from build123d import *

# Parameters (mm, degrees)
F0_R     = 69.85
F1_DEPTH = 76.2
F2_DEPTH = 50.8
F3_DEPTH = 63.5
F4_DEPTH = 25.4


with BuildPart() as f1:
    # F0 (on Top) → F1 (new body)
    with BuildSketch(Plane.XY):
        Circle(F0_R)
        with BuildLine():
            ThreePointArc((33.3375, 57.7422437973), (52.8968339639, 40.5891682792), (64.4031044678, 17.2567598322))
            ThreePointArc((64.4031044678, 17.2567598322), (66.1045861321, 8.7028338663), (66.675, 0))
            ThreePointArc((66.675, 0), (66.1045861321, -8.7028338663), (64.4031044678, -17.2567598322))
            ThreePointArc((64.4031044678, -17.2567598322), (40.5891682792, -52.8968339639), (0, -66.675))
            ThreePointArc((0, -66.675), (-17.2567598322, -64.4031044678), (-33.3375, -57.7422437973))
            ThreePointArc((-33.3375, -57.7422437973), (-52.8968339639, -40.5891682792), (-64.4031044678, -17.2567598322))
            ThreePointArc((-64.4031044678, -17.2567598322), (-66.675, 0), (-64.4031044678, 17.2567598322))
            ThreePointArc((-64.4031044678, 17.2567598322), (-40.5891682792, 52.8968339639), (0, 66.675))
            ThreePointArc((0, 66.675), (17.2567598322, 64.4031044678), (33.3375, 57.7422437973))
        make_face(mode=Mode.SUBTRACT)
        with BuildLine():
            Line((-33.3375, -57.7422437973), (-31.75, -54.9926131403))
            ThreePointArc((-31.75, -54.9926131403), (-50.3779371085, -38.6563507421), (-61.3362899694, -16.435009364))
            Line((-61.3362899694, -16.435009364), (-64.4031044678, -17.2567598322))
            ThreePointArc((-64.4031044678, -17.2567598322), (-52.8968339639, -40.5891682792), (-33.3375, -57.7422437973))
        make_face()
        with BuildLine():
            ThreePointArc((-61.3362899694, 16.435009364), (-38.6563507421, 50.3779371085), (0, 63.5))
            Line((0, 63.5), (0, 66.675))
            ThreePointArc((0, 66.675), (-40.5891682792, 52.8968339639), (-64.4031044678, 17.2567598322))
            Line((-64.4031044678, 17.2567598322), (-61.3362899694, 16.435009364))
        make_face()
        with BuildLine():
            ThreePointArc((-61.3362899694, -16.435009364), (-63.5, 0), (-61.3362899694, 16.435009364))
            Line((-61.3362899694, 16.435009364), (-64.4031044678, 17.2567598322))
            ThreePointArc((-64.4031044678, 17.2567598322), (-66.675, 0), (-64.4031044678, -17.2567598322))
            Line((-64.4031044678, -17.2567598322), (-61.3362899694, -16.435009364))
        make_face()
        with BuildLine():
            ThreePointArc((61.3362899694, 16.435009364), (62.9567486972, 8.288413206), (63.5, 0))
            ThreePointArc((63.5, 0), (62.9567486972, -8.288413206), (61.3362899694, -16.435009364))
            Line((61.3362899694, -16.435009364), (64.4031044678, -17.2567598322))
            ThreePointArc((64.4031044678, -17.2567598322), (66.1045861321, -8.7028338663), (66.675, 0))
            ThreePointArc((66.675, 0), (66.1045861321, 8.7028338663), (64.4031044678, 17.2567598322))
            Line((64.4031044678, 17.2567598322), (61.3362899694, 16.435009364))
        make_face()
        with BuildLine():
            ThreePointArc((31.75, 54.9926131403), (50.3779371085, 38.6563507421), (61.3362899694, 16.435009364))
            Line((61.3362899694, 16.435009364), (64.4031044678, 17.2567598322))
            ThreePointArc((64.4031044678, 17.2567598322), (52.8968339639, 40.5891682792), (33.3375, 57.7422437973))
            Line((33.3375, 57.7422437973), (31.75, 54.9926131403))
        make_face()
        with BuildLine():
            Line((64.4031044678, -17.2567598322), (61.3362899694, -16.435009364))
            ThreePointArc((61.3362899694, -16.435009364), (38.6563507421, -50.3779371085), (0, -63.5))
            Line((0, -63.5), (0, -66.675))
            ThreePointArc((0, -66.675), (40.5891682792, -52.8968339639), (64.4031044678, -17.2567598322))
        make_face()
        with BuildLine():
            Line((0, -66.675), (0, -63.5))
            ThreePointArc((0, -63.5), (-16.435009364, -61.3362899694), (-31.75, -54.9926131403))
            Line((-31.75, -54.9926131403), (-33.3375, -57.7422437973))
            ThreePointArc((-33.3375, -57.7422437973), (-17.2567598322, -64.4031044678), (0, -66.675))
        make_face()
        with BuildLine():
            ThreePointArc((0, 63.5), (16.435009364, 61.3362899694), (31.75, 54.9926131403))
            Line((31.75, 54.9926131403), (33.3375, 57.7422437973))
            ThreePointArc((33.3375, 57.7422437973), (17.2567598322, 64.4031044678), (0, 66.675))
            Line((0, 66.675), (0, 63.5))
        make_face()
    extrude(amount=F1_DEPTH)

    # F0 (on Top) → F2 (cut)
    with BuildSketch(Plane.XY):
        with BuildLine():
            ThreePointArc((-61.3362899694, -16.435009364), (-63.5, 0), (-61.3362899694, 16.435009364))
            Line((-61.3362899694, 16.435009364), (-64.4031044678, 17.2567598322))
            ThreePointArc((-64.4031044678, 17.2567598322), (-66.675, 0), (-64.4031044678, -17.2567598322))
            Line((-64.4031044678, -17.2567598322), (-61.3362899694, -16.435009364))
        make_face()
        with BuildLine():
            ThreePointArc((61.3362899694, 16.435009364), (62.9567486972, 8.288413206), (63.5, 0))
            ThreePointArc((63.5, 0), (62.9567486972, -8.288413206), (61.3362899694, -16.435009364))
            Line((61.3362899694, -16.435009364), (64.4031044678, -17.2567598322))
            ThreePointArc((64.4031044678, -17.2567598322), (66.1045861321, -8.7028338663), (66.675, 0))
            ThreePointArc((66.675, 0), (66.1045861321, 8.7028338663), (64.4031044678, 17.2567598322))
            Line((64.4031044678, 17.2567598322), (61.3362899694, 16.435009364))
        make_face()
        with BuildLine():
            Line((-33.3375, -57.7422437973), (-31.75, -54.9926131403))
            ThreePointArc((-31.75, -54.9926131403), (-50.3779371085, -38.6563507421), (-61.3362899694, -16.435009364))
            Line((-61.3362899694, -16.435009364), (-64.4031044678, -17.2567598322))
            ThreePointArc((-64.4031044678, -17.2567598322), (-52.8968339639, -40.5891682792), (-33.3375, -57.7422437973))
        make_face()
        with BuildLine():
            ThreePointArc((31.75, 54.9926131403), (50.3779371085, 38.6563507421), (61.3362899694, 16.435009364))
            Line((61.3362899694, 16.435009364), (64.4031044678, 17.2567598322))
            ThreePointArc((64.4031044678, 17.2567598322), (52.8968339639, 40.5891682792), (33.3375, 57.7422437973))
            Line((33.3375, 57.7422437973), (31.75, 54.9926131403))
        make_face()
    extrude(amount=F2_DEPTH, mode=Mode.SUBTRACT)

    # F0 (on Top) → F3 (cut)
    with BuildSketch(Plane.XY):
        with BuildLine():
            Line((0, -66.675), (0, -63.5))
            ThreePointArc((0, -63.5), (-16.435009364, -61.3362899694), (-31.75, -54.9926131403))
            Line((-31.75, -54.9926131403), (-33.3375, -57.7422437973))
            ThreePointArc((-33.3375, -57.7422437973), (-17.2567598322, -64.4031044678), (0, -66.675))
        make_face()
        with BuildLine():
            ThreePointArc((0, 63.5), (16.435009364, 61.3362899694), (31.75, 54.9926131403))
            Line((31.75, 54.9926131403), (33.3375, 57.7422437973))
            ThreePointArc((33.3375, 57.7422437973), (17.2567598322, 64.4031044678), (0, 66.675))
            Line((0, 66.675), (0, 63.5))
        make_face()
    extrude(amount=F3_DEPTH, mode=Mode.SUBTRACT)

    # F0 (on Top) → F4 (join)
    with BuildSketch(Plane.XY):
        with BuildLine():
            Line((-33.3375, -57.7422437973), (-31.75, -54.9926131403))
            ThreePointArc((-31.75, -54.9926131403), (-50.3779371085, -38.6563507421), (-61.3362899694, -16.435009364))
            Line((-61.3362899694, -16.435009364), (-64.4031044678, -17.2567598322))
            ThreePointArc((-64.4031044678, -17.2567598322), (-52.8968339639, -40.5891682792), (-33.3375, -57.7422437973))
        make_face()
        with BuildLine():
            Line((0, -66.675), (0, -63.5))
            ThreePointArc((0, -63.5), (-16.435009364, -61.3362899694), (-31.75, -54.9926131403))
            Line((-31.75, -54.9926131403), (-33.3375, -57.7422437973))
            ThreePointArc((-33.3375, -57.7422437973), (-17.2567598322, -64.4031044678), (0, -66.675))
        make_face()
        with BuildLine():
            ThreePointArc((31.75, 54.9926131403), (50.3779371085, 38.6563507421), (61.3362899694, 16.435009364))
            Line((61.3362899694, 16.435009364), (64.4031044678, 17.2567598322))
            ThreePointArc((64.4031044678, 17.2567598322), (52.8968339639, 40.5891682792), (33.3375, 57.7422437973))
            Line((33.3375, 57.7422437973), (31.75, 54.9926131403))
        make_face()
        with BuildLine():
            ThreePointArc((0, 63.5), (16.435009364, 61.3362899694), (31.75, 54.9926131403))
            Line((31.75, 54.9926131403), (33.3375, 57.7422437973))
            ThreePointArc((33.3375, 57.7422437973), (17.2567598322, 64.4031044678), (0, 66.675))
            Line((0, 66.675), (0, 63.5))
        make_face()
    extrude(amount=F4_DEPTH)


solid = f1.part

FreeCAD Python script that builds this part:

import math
import FreeCAD as App
import Part
import Sketcher

V = App.Vector
Q = App.Units.Quantity

doc = App.newDocument("Part")
body = doc.addObject("PartDesign::Body", "Body")

sketch1 = body.newObject("Sketcher::SketchObject", "Sketch")
sketch1.AttachmentSupport = (doc.getObject("XY_Plane"), [""])
sketch1.MapMode = "FlatFace"
sketch1.addGeometry([
    Part.Circle(V(0, 0, 0), V(0, 0, 1), 69.85),
    Part.ArcOfCircle(Part.Circle(V(0, 0, 0), V(0, 0, 1), 63.5), math.radians(15), math.radians(60)),
    Part.ArcOfCircle(Part.Circle(V(0, 0, 0), V(0, 0, 1), 63.5), math.radians(0), math.radians(15)),
    Part.ArcOfCircle(Part.Circle(V(0, 0, 0), V(0, 0, 1), 63.5), math.radians(-15), math.radians(0)),
    Part.ArcOfCircle(Part.Circle(V(0, 0, 0), V(0, 0, 1), 63.5), math.radians(-90), math.radians(-15)),
    Part.ArcOfCircle(Part.Circle(V(0, 0, 0), V(0, 0, 1), 63.5), math.radians(-120), math.radians(-90)),
    Part.ArcOfCircle(Part.Circle(V(0, 0, 0), V(0, 0, 1), 63.5), math.radians(-165), math.radians(-120)),
    Part.ArcOfCircle(Part.Circle(V(0, 0, 0), V(0, 0, 1), 63.5), math.radians(165), math.radians(195)),
    Part.ArcOfCircle(Part.Circle(V(0, 0, 0), V(0, 0, 1), 63.5), math.radians(90), math.radians(165)),
    Part.ArcOfCircle(Part.Circle(V(0, 0, 0), V(0, 0, 1), 63.5), math.radians(60), math.radians(90)),
], False)
sketch1.addConstraint([
    Sketcher.Constraint("Tangent", 1, 1, 2, 2),
    Sketcher.Constraint("Tangent", 2, 1, 3, 2),
    Sketcher.Constraint("Tangent", 3, 1, 4, 2),
    Sketcher.Constraint("Tangent", 4, 1, 5, 2),
    Sketcher.Constraint("Tangent", 5, 1, 6, 2),
    Sketcher.Constraint("Tangent", 6, 1, 7, 2),
    Sketcher.Constraint("Tangent", 7, 1, 8, 2),
    Sketcher.Constraint("Tangent", 8, 1, 9, 2),
    Sketcher.Constraint("Tangent", 9, 1, 1, 2),
    Sketcher.Constraint("Coincident", 0, 3, -1, 1),
    Sketcher.Constraint("Coincident", 1, 3, -1, 1),
    Sketcher.Constraint("Coincident", 3, 3, -1, 1),
    Sketcher.Constraint("Coincident", 5, 3, -1, 1),
    Sketcher.Constraint("Coincident", 7, 3, -1, 1),
    Sketcher.Constraint("PointOnObject", 2, 1, -1),
    Sketcher.Constraint("PointOnObject", 4, 1, -2),
    Sketcher.Constraint("PointOnObject", 8, 1, -2),
    Sketcher.Constraint("Horizontal", 3, 1, 6, 1),
    Sketcher.Constraint("Horizontal", 1, 1, 7, 1),
    Sketcher.Constraint("Vertical", 1, 1, 3, 1),
    Sketcher.Constraint("Diameter", 0, Q("5.5 in")),
    Sketcher.Constraint("Radius", 1, Q("2.5 in")),
    Sketcher.Constraint("DistanceX", 5, 1, -1, 1, Q("1.25 in")),
    Sketcher.Constraint("DistanceX", -1, 1, 9, 1, Q("1.25 in")),
    Sketcher.Constraint("DistanceX", -1, 1, 1, 1, Q("61.33629 mm")),
])
pad1 = body.newObject("PartDesign::Pad", "Pad")
pad1.Profile = sketch1
pad1.Length = Q("3 in")

sketch2 = body.newObject("Sketcher::SketchObject", "Sketch001")
sketch2.AttachmentSupport = (doc.getObject("XY_Plane"), [""])
sketch2.MapMode = "FlatFace"
sketch2.addGeometry([
    Part.ArcOfCircle(Part.Circle(V(0, 0, 0), V(0, 0, 1), 63.5), math.radians(165), math.radians(195)),
    Part.LineSegment(V(-61.33629, 16.435009, 0), V(-64.403104, 17.25676, 0)),
    Part.ArcOfCircle(Part.Circle(V(0, 0, 0), V(0, 0, 1), 66.675), math.radians(165), math.radians(195)),
    Part.ArcOfCircle(Part.Circle(V(0, 0, 0), V(0, 0, 1), 66.675), math.radians(-165), math.radians(-120)),
    Part.LineSegment(V(-33.3375, -57.742244, 0), V(-31.75, -54.992613, 0)),
    Part.ArcOfCircle(Part.Circle(V(0, 0, 0), V(0, 0, 1), 63.5), math.radians(-165), math.radians(-120)),
    Part.ArcOfCircle(Part.Circle(V(0, 0, 0), V(0, 0, 1), 63.5), math.radians(0), math.radians(15)),
    Part.ArcOfCircle(Part.Circle(V(0, 0, 0), V(0, 0, 1), 63.5), math.radians(-15), math.radians(0)),
    Part.LineSegment(V(61.33629, -16.435009, 0), V(64.403104, -17.25676, 0)),
    Part.ArcOfCircle(Part.Circle(V(0, 0, 0), V(0, 0, 1), 66.675), math.radians(-15), math.radians(0)),
    Part.ArcOfCircle(Part.Circle(V(0, 0, 0), V(0, 0, 1), 66.675), math.radians(0), math.radians(15)),
    Part.ArcOfCircle(Part.Circle(V(0, 0, 0), V(0, 0, 1), 66.675), math.radians(15), math.radians(60)),
    Part.LineSegment(V(33.3375, 57.742244, 0), V(31.75, 54.992613, 0)),
    Part.ArcOfCircle(Part.Circle(V(0, 0, 0), V(0, 0, 1), 63.5), math.radians(15), math.radians(60)),
], False)
sketch2.addConstraint([
    Sketcher.Constraint("Coincident", 0, 1, 1, 1),
    Sketcher.Constraint("Coincident", 1, 2, 2, 1),
    Sketcher.Constraint("Tangent", 2, 2, 3, 1),
    Sketcher.Constraint("Coincident", 3, 2, 4, 1),
    Sketcher.Constraint("Coincident", 4, 2, 5, 2),
    Sketcher.Constraint("Tangent", 5, 1, 0, 2),
    Sketcher.Constraint("Tangent", 6, 1, 7, 2),
    Sketcher.Constraint("Coincident", 7, 1, 8, 1),
    Sketcher.Constraint("Coincident", 8, 2, 9, 1),
    Sketcher.Constraint("Tangent", 9, 2, 10, 1),
    Sketcher.Constraint("Tangent", 10, 2, 11, 1),
    Sketcher.Constraint("Coincident", 11, 2, 12, 1),
    Sketcher.Constraint("Coincident", 12, 2, 13, 2),
    Sketcher.Constraint("Tangent", 13, 1, 6, 2),
    Sketcher.Constraint("Coincident", 0, 3, -1, 1),
    Sketcher.Constraint("Coincident", 2, 3, -1, 1),
    Sketcher.Constraint("Coincident", 6, 3, -1, 1),
    Sketcher.Constraint("Coincident", 9, 3, -1, 1),
    Sketcher.Constraint("Coincident", 11, 3, -1, 1),
    Sketcher.Constraint("Equal", 2, 3),
    Sketcher.Constraint("Equal", 0, 5),
    Sketcher.Constraint("Equal", 5, 6),
    Sketcher.Constraint("Equal", 6, 7),
    Sketcher.Constraint("Equal", 3, 9),
    Sketcher.Constraint("Equal", 7, 13),
    Sketcher.Constraint("PointOnObject", 6, 1, -1),
    Sketcher.Constraint("PointOnObject", 9, 2, -1),
    Sketcher.Constraint("Parallel", 1, 8),
    Sketcher.Constraint("Parallel", 4, 12),
    Sketcher.Constraint("Horizontal", 5, 1, 7, 1),
    Sketcher.Constraint("Horizontal", 2, 2, 8, 2),
    Sketcher.Constraint("Horizontal", 1, 2, 10, 2),
    Sketcher.Constraint("Horizontal", 0, 1, 13, 1),
    Sketcher.Constraint("Vertical", 1, 2, 2, 2),
    Sketcher.Constraint("Radius", 0, Q("2.5 in")),
    Sketcher.Constraint("Angle", 1, Q("165 deg")),
    Sketcher.Constraint("Angle", 4, Q("60 deg")),
    Sketcher.Constraint("Radius", 2, Q("2.625 in")),
    Sketcher.Constraint("DistanceX", 4, 2, -1, 1, Q("1.25 in")),
    Sketcher.Constraint("DistanceX", -1, 1, 12, 2, Q("1.25 in")),
    Sketcher.Constraint("DistanceY", -1, 1, 1, 2, Q("0.6794 in")),
])
pocket1 = body.newObject("PartDesign::Pocket", "Pocket")
pocket1.Profile = sketch2
pocket1.Length = Q("2 in")
pocket1.Reversed = True

sketch3 = body.newObject("Sketcher::SketchObject", "Sketch002")
sketch3.AttachmentSupport = (doc.getObject("XY_Plane"), [""])
sketch3.MapMode = "FlatFace"
sketch3.addGeometry([
    Part.LineSegment(V(0, -66.675, 0), V(0, -63.5, 0)),
    Part.ArcOfCircle(Part.Circle(V(0, 0, 0), V(0, 0, 1), 63.5), math.radians(-120), math.radians(-90)),
    Part.LineSegment(V(-31.75, -54.992613, 0), V(-33.3375, -57.742244, 0)),
    Part.ArcOfCircle(Part.Circle(V(0, 0, 0), V(0, 0, 1), 66.675), math.radians(-120), math.radians(-90)),
    Part.ArcOfCircle(Part.Circle(V(0, 0, 0), V(0, 0, 1), 63.5), math.radians(60), math.radians(90)),
    Part.LineSegment(V(31.75, 54.992613, 0), V(33.3375, 57.742244, 0)),
    Part.ArcOfCircle(Part.Circle(V(0, 0, 0), V(0, 0, 1), 66.675), math.radians(60), math.radians(90)),
    Part.LineSegment(V(0, 66.675, 0), V(0, 63.5, 0)),
], False)
sketch3.addConstraint([
    Sketcher.Constraint("Coincident", 0, 2, 1, 2),
    Sketcher.Constraint("Coincident", 1, 1, 2, 1),
    Sketcher.Constraint("Coincident", 2, 2, 3, 1),
    Sketcher.Constraint("Coincident", 3, 2, 0, 1),
    Sketcher.Constraint("Coincident", 4, 1, 5, 1),
    Sketcher.Constraint("Coincident", 5, 2, 6, 1),
    Sketcher.Constraint("Coincident", 6, 2, 7, 1),
    Sketcher.Constraint("Coincident", 7, 2, 4, 2),
    Sketcher.Constraint("Vertical", 0),
    Sketcher.Constraint("Vertical", 7),
    Sketcher.Constraint("Coincident", 1, 3, -1, 1),
    Sketcher.Constraint("Coincident", 3, 3, -1, 1),
    Sketcher.Constraint("Coincident", 4, 3, -1, 1),
    Sketcher.Constraint("Coincident", 6, 3, -1, 1),
    Sketcher.Constraint("Equal", 1, 4),
    Sketcher.Constraint("Equal", 3, 6),
    Sketcher.Constraint("PointOnObject", 0, 2, -2),
    Sketcher.Constraint("PointOnObject", 6, 2, -2),
    Sketcher.Constraint("Parallel", 2, 5),
    Sketcher.Constraint("Radius", 1, Q("2.5 in")),
    Sketcher.Constraint("Angle", 2, Q("-120 deg")),
    Sketcher.Constraint("Radius", 3, Q("2.625 in")),
    Sketcher.Constraint("DistanceX", 1, 1, -1, 1, Q("1.25 in")),
    Sketcher.Constraint("DistanceX", -1, 1, 4, 1, Q("1.25 in")),
])
pocket2 = body.newObject("PartDesign::Pocket", "Pocket001")
pocket2.Profile = sketch3
pocket2.Length = Q("2.5 in")
pocket2.Reversed = True

sketch4 = body.newObject("Sketcher::SketchObject", "Sketch003")
sketch4.AttachmentSupport = (doc.getObject("XY_Plane"), [""])
sketch4.MapMode = "FlatFace"
sketch4.addGeometry([
    Part.ArcOfCircle(Part.Circle(V(0, 0, 0), V(0, 0, 1), 63.5), math.radians(-165), math.radians(-120)),
    Part.LineSegment(V(-61.33629, -16.435009, 0), V(-64.403104, -17.25676, 0)),
    Part.ArcOfCircle(Part.Circle(V(0, 0, 0), V(0, 0, 1), 66.675), math.radians(-165), math.radians(-120)),
    Part.ArcOfCircle(Part.Circle(V(0, 0, 0), V(0, 0, 1), 66.675), math.radians(-120), math.radians(-90)),
    Part.LineSegment(V(0, -66.675, 0), V(0, -63.5, 0)),
    Part.ArcOfCircle(Part.Circle(V(0, 0, 0), V(0, 0, 1), 63.5), math.radians(-120), math.radians(-90)),
    Part.ArcOfCircle(Part.Circle(V(0, 0, 0), V(0, 0, 1), 63.5), math.radians(15), math.radians(60)),
    Part.LineSegment(V(61.33629, 16.435009, 0), V(64.403104, 17.25676, 0)),
    Part.ArcOfCircle(Part.Circle(V(0, 0, 0), V(0, 0, 1), 66.675), math.radians(15), math.radians(60)),
    Part.ArcOfCircle(Part.Circle(V(0, 0, 0), V(0, 0, 1), 66.675), math.radians(60), math.radians(90)),
    Part.LineSegment(V(0, 66.675, 0), V(0, 63.5, 0)),
    Part.ArcOfCircle(Part.Circle(V(0, 0, 0), V(0, 0, 1), 63.5), math.radians(60), math.radians(90)),
], False)
sketch4.addConstraint([
    Sketcher.Constraint("Coincident", 0, 1, 1, 1),
    Sketcher.Constraint("Coincident", 1, 2, 2, 1),
    Sketcher.Constraint("Tangent", 2, 2, 3, 1),
    Sketcher.Constraint("Coincident", 3, 2, 4, 1),
    Sketcher.Constraint("Coincident", 4, 2, 5, 2),
    Sketcher.Constraint("Tangent", 5, 1, 0, 2),
    Sketcher.Constraint("Coincident", 6, 1, 7, 1),
    Sketcher.Constraint("Coincident", 7, 2, 8, 1),
    Sketcher.Constraint("Tangent", 8, 2, 9, 1),
    Sketcher.Constraint("Coincident", 9, 2, 10, 1),
    Sketcher.Constraint("Coincident", 10, 2, 11, 2),
    Sketcher.Constraint("Tangent", 11, 1, 6, 2),
    Sketcher.Constraint("Vertical", 4),
    Sketcher.Constraint("Vertical", 10),
    Sketcher.Constraint("Coincident", 0, 3, -1, 1),
    Sketcher.Constraint("Coincident", 2, 3, -1, 1),
    Sketcher.Constraint("Coincident", 6, 3, -1, 1),
    Sketcher.Constraint("Coincident", 8, 3, -1, 1),
    Sketcher.Constraint("Equal", 2, 3),
    Sketcher.Constraint("Equal", 0, 5),
    Sketcher.Constraint("Equal", 5, 6),
    Sketcher.Constraint("Equal", 3, 8),
    Sketcher.Constraint("Equal", 8, 9),
    Sketcher.Constraint("Equal", 6, 11),
    Sketcher.Constraint("PointOnObject", 3, 2, -2),
    Sketcher.Constraint("PointOnObject", 9, 2, -2),
    Sketcher.Constraint("Parallel", 1, 7),
    Sketcher.Constraint("Radius", 0, Q("2.5 in")),
    Sketcher.Constraint("Angle", 1, Q("-165 deg")),
    Sketcher.Constraint("Radius", 2, Q("2.625 in")),
    Sketcher.Constraint("DistanceX", 5, 1, -1, 1, Q("1.25 in")),
    Sketcher.Constraint("DistanceX", -1, 1, 11, 1, Q("1.25 in")),
    Sketcher.Constraint("DistanceX", 2, 2, -1, 1, Q("1.3125 in")),
    Sketcher.Constraint("DistanceX", -1, 1, 8, 2, Q("1.3125 in")),
    Sketcher.Constraint("DistanceY", 1, 2, -1, 1, Q("0.6794 in")),
    Sketcher.Constraint("DistanceY", -1, 1, 7, 2, Q("0.6794 in")),
])
pad2 = body.newObject("PartDesign::Pad", "Pad001")
pad2.Profile = sketch4
pad2.Length = Q("1 in")

doc.recompute()
